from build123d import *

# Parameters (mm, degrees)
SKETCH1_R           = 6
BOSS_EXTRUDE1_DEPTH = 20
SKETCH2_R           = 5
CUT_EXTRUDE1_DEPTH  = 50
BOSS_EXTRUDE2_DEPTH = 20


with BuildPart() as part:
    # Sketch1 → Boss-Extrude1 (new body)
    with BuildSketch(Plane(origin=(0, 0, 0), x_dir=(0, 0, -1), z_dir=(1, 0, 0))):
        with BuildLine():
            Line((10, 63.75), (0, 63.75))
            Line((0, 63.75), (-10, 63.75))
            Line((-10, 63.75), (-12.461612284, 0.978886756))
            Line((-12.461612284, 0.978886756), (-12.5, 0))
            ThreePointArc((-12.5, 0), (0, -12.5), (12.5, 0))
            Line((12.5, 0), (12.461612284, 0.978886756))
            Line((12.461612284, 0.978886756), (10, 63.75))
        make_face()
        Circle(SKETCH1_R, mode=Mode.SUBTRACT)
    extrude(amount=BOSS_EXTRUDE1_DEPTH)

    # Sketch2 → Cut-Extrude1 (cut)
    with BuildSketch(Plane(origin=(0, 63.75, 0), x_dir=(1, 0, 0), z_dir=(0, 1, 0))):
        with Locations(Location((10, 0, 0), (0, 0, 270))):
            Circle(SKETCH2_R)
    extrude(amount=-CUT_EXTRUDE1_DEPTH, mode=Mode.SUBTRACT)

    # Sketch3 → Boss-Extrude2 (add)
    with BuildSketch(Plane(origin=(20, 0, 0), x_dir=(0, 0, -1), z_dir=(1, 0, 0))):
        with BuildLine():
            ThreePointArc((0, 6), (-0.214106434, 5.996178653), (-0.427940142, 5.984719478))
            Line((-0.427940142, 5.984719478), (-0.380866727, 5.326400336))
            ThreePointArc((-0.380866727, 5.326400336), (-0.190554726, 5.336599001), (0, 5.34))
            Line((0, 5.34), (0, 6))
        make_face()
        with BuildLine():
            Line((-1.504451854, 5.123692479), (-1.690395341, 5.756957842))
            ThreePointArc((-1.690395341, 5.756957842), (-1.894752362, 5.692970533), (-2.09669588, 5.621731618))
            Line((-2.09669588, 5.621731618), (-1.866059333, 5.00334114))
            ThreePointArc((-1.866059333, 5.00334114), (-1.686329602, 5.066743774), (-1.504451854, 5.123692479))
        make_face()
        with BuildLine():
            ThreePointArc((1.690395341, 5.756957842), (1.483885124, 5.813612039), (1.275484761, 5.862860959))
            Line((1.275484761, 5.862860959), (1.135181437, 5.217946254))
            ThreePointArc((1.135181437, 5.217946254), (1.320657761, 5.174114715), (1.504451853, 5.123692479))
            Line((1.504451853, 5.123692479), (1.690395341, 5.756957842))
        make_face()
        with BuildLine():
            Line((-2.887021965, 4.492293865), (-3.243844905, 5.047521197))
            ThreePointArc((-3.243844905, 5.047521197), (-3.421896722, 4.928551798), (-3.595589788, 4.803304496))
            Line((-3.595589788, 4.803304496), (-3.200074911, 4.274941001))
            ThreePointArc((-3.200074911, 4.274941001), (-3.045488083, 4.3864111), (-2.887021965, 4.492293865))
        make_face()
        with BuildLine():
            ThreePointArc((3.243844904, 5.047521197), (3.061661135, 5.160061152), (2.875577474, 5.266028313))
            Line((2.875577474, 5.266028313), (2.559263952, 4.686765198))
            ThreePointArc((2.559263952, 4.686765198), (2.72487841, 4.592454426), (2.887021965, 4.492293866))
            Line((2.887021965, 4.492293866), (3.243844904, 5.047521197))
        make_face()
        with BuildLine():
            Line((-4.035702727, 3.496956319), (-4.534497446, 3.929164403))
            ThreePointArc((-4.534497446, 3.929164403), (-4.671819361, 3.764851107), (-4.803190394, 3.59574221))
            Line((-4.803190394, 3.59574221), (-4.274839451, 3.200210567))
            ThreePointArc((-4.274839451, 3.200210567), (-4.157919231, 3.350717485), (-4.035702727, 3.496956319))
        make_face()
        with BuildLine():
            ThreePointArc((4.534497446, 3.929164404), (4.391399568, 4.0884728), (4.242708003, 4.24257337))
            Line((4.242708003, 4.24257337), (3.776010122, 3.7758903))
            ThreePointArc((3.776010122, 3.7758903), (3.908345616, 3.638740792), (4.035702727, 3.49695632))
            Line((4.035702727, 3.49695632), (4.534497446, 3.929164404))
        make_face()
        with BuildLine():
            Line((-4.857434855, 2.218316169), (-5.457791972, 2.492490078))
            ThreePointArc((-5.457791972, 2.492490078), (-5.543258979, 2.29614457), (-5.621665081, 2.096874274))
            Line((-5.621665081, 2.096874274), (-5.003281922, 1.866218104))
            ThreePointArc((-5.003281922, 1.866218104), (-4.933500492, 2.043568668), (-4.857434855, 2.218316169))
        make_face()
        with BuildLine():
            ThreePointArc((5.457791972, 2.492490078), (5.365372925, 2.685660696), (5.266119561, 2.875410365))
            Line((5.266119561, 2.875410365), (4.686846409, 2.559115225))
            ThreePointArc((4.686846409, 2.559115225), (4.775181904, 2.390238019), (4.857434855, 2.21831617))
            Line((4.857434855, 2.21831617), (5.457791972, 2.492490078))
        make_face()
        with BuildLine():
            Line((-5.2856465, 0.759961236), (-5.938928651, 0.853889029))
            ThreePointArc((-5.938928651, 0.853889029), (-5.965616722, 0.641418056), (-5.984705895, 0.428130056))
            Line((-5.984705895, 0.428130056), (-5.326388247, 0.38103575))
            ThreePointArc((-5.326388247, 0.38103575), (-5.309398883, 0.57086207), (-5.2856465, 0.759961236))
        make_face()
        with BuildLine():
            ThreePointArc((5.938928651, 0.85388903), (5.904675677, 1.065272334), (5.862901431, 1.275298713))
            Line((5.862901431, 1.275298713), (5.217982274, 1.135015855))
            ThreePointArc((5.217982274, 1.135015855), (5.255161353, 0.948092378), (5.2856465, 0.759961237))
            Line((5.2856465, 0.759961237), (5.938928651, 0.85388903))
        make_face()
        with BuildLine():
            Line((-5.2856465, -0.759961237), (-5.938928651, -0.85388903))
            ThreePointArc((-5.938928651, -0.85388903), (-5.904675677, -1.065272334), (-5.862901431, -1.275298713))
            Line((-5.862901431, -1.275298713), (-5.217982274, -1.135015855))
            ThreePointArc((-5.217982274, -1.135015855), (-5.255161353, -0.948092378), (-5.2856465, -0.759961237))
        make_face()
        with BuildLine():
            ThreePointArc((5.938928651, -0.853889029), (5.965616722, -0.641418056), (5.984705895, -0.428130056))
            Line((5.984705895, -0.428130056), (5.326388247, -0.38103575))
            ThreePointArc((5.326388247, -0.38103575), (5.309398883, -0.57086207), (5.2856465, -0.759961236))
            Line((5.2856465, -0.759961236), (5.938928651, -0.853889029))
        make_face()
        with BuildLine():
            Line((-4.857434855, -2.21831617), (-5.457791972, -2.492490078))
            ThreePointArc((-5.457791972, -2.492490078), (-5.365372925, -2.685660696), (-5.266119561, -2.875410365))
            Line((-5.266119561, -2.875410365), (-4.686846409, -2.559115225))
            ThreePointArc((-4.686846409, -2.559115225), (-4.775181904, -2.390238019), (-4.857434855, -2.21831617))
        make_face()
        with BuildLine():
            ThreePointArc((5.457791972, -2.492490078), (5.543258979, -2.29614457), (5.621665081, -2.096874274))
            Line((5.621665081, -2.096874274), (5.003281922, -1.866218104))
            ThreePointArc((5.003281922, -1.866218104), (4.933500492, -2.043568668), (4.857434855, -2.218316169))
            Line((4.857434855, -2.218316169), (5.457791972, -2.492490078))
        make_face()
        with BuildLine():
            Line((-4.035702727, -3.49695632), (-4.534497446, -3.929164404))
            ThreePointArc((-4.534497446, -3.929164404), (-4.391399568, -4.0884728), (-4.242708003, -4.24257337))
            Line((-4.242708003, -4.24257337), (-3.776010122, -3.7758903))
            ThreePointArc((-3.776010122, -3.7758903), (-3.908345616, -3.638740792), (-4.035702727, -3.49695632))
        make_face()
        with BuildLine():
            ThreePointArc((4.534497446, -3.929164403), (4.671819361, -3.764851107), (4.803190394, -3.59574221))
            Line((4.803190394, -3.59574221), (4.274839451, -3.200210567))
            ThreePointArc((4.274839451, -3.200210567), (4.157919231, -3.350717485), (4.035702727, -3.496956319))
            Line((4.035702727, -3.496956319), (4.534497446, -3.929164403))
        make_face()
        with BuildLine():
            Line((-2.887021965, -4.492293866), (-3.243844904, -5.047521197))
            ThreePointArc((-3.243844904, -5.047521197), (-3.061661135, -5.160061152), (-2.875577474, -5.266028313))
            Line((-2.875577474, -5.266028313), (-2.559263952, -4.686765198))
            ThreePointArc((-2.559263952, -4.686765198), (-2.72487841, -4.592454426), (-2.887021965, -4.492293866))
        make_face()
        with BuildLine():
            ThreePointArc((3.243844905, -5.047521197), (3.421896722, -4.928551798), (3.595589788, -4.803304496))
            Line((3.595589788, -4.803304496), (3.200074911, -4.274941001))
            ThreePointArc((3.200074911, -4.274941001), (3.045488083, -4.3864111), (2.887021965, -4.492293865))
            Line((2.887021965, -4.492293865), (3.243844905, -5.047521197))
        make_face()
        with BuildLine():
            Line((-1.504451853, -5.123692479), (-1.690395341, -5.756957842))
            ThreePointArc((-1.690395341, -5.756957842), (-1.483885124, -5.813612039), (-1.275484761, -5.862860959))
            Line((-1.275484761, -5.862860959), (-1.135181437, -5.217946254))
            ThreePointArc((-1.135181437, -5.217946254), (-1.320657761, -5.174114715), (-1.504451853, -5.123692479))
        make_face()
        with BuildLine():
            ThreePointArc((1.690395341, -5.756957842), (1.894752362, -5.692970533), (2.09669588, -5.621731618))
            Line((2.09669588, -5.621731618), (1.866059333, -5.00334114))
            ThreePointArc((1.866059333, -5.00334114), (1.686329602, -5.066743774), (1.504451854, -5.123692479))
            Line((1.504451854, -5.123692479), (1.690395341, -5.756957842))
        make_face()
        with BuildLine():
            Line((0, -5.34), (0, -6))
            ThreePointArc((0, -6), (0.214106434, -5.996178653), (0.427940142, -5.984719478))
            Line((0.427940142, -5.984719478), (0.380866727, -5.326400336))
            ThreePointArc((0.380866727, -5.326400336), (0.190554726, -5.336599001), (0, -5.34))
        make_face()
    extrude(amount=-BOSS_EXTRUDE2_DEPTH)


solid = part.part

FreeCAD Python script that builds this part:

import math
import FreeCAD as App
import Part
import Sketcher
Q = App.Units.Quantity

doc = App.newDocument("Part")
params = doc.addObject("Spreadsheet::Sheet", "Params")
for row, (alias, value) in enumerate([
    ("sketch1_diameter", "12 mm"),
    ("sketch1_radius", "12.5 mm"),
    ("sketch1_height", "20 mm"),
    ("pad1_length", "20 mm"),
    ("sketch2_diameter", "10 mm"),
    ("pocket1_length", "50 mm"),
    ("sketch3_radius", "5.999999 mm"),
    ("sketch3_radius2", "5.34 mm"),
    ("pad2_length", "20 mm"),
], start=1):
    params.set(f"A{row}", alias)
    params.set(f"B{row}", "=" + value)
    params.setAlias(f"B{row}", alias)

body = doc.addObject("PartDesign::Body", "Body")

sketch1 = body.newObject("Sketcher::SketchObject", "Sketch")
sketch1.AttachmentSupport = (doc.getObject("YZ_Plane"), [""])
sketch1.MapMode = "FlatFace"
sketch1.addGeometry(Part.LineSegment(App.Vector(63.75, -10, 0), App.Vector(63.75, 10, 0)), False)
sketch1.addGeometry(Part.LineSegment(App.Vector(63.75, 10, 0), App.Vector(0.978887, 12.461612, 0)), False)
sketch1.addGeometry(Part.LineSegment(App.Vector(0.978887, 12.461612, 0), App.Vector(0, 12.5, 0)), False)
sketch1.addGeometry(Part.ArcOfCircle(Part.Circle(App.Vector(0, 0, 0), App.Vector(0, 0, 1), 12.5), math.radians(90), math.radians(270)), False)
sketch1.addGeometry(Part.LineSegment(App.Vector(0, -12.5, 0), App.Vector(0.978887, -12.461612, 0)), False)
sketch1.addGeometry(Part.LineSegment(App.Vector(0.978887, -12.461612, 0), App.Vector(63.75, -10, 0)), False)
sketch1.addGeometry(Part.Circle(App.Vector(0, 0, 0), App.Vector(0, 0, 1), 6), False)
sketch1.addConstraint(Sketcher.Constraint("Coincident", 0, 2, 1, 1))
sketch1.addConstraint(Sketcher.Constraint("Coincident", 1, 2, 2, 1))
sketch1.addConstraint(Sketcher.Constraint("Coincident", 2, 2, 3, 1))
sketch1.addConstraint(Sketcher.Constraint("Coincident", 3, 2, 4, 1))
sketch1.addConstraint(Sketcher.Constraint("Coincident", 4, 2, 5, 1))
sketch1.addConstraint(Sketcher.Constraint("Coincident", 5, 2, 0, 1))
sketch1.addConstraint(Sketcher.Constraint("Vertical", 0))
sketch1.addConstraint(Sketcher.Constraint("Coincident", 3, 3, -1, 1))
sketch1.addConstraint(Sketcher.Constraint("Coincident", 6, 3, -1, 1))
sketch1.addConstraint(Sketcher.Constraint("Symmetric", 1, 2, 4, 2, -1))
sketch1.addConstraint(Sketcher.Constraint("PointOnObject", 2, 2, -2))
sketch1.addConstraint(Sketcher.Constraint("PointOnObject", 3, 2, -2))
sketch1.addConstraint(Sketcher.Constraint("Parallel", 1, 2))
sketch1.addConstraint(Sketcher.Constraint("Parallel", 4, 5))
sketch1.addConstraint(Sketcher.Constraint("Diameter", 6, 12.0))
sketch1.addConstraint(Sketcher.Constraint("Radius", 3, 12.5))
sketch1.addConstraint(Sketcher.Constraint("DistanceY", 0, 1, 0, 2, 20.0))
sketch1.addConstraint(Sketcher.Constraint("DistanceX", -1, 1, 0, 2, 63.75))
sketch1.addConstraint(Sketcher.Constraint("Distance", 1, 62.819362))
sketch1.setExpression("Constraints[14]", "Params.sketch1_diameter")
sketch1.setExpression("Constraints[15]", "Params.sketch1_radius")
sketch1.setExpression("Constraints[16]", "Params.sketch1_height")
pad1 = body.newObject("PartDesign::Pad", "Pad")
pad1.Profile = sketch1
pad1.setExpression("Length", "Params.pad1_length")

sketch2 = body.newObject("Sketcher::SketchObject", "Sketch001")
sketch2.AttachmentSupport = (doc.getObject("XZ_Plane"), [""])
sketch2.MapMode = "FlatFace"
sketch2.AttachmentOffset = App.Placement(App.Vector(0, 0, -63.75), App.Rotation())
sketch2.addGeometry(Part.Circle(App.Vector(10, 0, 0), App.Vector(0, 0, 1), 5), False)
sketch2.addConstraint(Sketcher.Constraint("PointOnObject", 0, 3, -1))
sketch2.addConstraint(Sketcher.Constraint("Diameter", 0, 10.0))
sketch2.addConstraint(Sketcher.Constraint("DistanceX", -1, 1, 0, 3, 10.0))
sketch2.setExpression("Constraints[1]", "Params.sketch2_diameter")
pocket1 = body.newObject("PartDesign::Pocket", "Pocket")
pocket1.Profile = sketch2
pocket1.setExpression("Length", "Params.pocket1_length")
pocket1.Reversed = True

sketch3 = body.newObject("Sketcher::SketchObject", "Sketch002")
sketch3.AttachmentSupport = (doc.getObject("YZ_Plane"), [""])
sketch3.MapMode = "FlatFace"
sketch3.AttachmentOffset = App.Placement(App.Vector(0, 0, 20), App.Rotation())
sketch3.addGeometry(Part.ArcOfCircle(Part.Circle(App.Vector(0.000001, 0, 0), App.Vector(0, 0, 1), 5.999999), math.radians(0), math.radians(4.09)), False)
sketch3.addGeometry(Part.LineSegment(App.Vector(5.984719, 0.42794, 0), App.Vector(5.3264, 0.380867, 0)), False)
sketch3.addGeometry(Part.ArcOfCircle(Part.Circle(App.Vector(0, 0, 0), App.Vector(0, 0, 1), 5.34), math.radians(0), math.radians(4.09)), False)
sketch3.addGeometry(Part.LineSegment(App.Vector(5.34, 0, 0), App.Vector(6, 0, 0)), False)
sketch3.addGeometry(Part.LineSegment(App.Vector(5.123692, 1.504452, 0), App.Vector(5.756958, 1.690395, 0)), False)
sketch3.addGeometry(Part.ArcOfCircle(Part.Circle(App.Vector(0, 0, 0), App.Vector(0, 0, 1), 6), math.radians(16.363636), math.radians(20.453637)), False)
sketch3.addGeometry(Part.LineSegment(App.Vector(5.621732, 2.096696, 0), App.Vector(5.003341, 1.866059, 0)), False)
sketch3.addGeometry(Part.ArcOfCircle(Part.Circle(App.Vector(0, 0, 0), App.Vector(0, 0, 1), 5.34), math.radians(16.363636), math.radians(20.453636)), False)
sketch3.addGeometry(Part.ArcOfCircle(Part.Circle(App.Vector(0, 0, 0), App.Vector(0, 0, 1), 6), math.radians(-16.363636), math.radians(-12.273636)), False)
sketch3.addGeometry(Part.LineSegment(App.Vector(5.862861, -1.275485, 0), App.Vector(5.217946, -1.135181, 0)), False)
sketch3.addGeometry(Part.ArcOfCircle(Part.Circle(App.Vector(0.000001, 0, 0), App.Vector(0, 0, 1), 5.339999), math.radians(-16.363637), math.radians(-12.273636)), False)
sketch3.addGeometry(Part.LineSegment(App.Vector(5.123692, -1.504452, 0), App.Vector(5.756958, -1.690395, 0)), False)
sketch3.addGeometry(Part.LineSegment(App.Vector(4.492294, 2.887022, 0), App.Vector(5.047521, 3.243845, 0)), False)
sketch3.addGeometry(Part.ArcOfCircle(Part.Circle(App.Vector(0, 0, 0), App.Vector(0, 0, 1), 6), math.radians(32.727273), math.radians(36.817273)), False)
sketch3.addGeometry(Part.LineSegment(App.Vector(4.803304, 3.59559, 0), App.Vector(4.274941, 3.200075, 0)), False)
sketch3.addGeometry(Part.ArcOfCircle(Part.Circle(App.Vector(0.000001, 0, 0), App.Vector(0, 0, 1), 5.339999), math.radians(32.727272), math.radians(36.817273)), False)
sketch3.addGeometry(Part.ArcOfCircle(Part.Circle(App.Vector(0, 0, 0), App.Vector(0, 0, 1), 6), math.radians(-32.727273), math.radians(-28.637273)), False)
sketch3.addGeometry(Part.LineSegment(App.Vector(5.266028, -2.875577, 0), App.Vector(4.686765, -2.559264, 0)), False)
sketch3.addGeometry(Part.ArcOfCircle(Part.Circle(App.Vector(0, 0, 0), App.Vector(0, 0, 1), 5.34), math.radians(-32.727273), math.radians(-28.637272)), False)
sketch3.addGeometry(Part.LineSegment(App.Vector(4.492294, -2.887022, 0), App.Vector(5.047521, -3.243845, 0)), False)
sketch3.addGeometry(Part.LineSegment(App.Vector(3.496956, 4.035703, 0), App.Vector(3.929164, 4.534497, 0)), False)
sketch3.addGeometry(Part.ArcOfCircle(Part.Circle(App.Vector(0, 0, 0), App.Vector(0, 0, 1), 6), math.radians(49.090909), math.radians(53.180909)), False)
sketch3.addGeometry(Part.LineSegment(App.Vector(3.595742, 4.80319, 0), App.Vector(3.200211, 4.274839, 0)), False)
sketch3.addGeometry(Part.ArcOfCircle(Part.Circle(App.Vector(-0.000001, -0.000001, 0), App.Vector(0, 0, 1), 5.340001), math.radians(49.090909), math.radians(53.180909)), False)
sketch3.addGeometry(Part.ArcOfCircle(Part.Circle(App.Vector(0, 0, 0), App.Vector(0, 0, 1), 6), math.radians(-49.090909), math.radians(-45.000909)), False)
sketch3.addGeometry(Part.LineSegment(App.Vector(4.242573, -4.242708, 0), App.Vector(3.77589, -3.77601, 0)), False)
sketch3.addGeometry(Part.ArcOfCircle(Part.Circle(App.Vector(0, 0, 0), App.Vector(0, 0, 1), 5.339999), math.radians(-49.090909), math.radians(-45.000909)), False)
sketch3.addGeometry(Part.LineSegment(App.Vector(3.496956, -4.035703, 0), App.Vector(3.929164, -4.534497, 0)), False)
sketch3.addGeometry(Part.LineSegment(App.Vector(2.218316, 4.857435, 0), App.Vector(2.49249, 5.457792, 0)), False)
sketch3.addGeometry(Part.ArcOfCircle(Part.Circle(App.Vector(0, -0.000001, 0), App.Vector(0, 0, 1), 6.000001), math.radians(65.454546), math.radians(69.544545)), False)
sketch3.addGeometry(Part.LineSegment(App.Vector(2.096874, 5.621665, 0), App.Vector(1.866218, 5.003282, 0)), False)
sketch3.addGeometry(Part.ArcOfCircle(Part.Circle(App.Vector(0, 0.000001, 0), App.Vector(0, 0, 1), 5.339999), math.radians(65.454545), math.radians(69.544546)), False)
sketch3.addGeometry(Part.ArcOfCircle(Part.Circle(App.Vector(0, 0, 0), App.Vector(0, 0, 1), 6), math.radians(-65.454545), math.radians(-61.364545)), False)
sketch3.addGeometry(Part.LineSegment(App.Vector(2.87541, -5.26612, 0), App.Vector(2.559115, -4.686846, 0)), False)
sketch3.addGeometry(Part.ArcOfCircle(Part.Circle(App.Vector(0, -0.000001, 0), App.Vector(0, 0, 1), 5.339999), math.radians(-65.454546), math.radians(-61.364545)), False)
sketch3.addGeometry(Part.LineSegment(App.Vector(2.218316, -4.857435, 0), App.Vector(2.49249, -5.457792, 0)), False)
sketch3.addGeometry(Part.LineSegment(App.Vector(0.759961, 5.285647, 0), App.Vector(0.853889, 5.938929, 0)), False)
sketch3.addGeometry(Part.ArcOfCircle(Part.Circle(App.Vector(0, 0, 0), App.Vector(0, 0, 1), 6), math.radians(81.818182), math.radians(85.908182)), False)
sketch3.addGeometry(Part.LineSegment(App.Vector(0.42813, 5.984706, 0), App.Vector(0.381036, 5.326388, 0)), False)
sketch3.addGeometry(Part.ArcOfCircle(Part.Circle(App.Vector(0, 0, 0), App.Vector(0, 0, 1), 5.34), math.radians(81.818182), math.radians(85.908182)), False)
sketch3.addGeometry(Part.ArcOfCircle(Part.Circle(App.Vector(0, 0, 0), App.Vector(0, 0, 1), 6), math.radians(-81.818182), math.radians(-77.728182)), False)
sketch3.addGeometry(Part.LineSegment(App.Vector(1.275299, -5.862901, 0), App.Vector(1.135016, -5.217982, 0)), False)
sketch3.addGeometry(Part.ArcOfCircle(Part.Circle(App.Vector(0, 0, 0), App.Vector(0, 0, 1), 5.34), math.radians(-81.818182), math.radians(-77.728182)), False)
sketch3.addGeometry(Part.LineSegment(App.Vector(0.759961, -5.285647, 0), App.Vector(0.853889, -5.938929, 0)), False)
sketch3.addGeometry(Part.LineSegment(App.Vector(-0.759961, 5.285647, 0), App.Vector(-0.853889, 5.938929, 0)), False)
sketch3.addGeometry(Part.ArcOfCircle(Part.Circle(App.Vector(0, 0, 0), App.Vector(0, 0, 1), 6), math.radians(98.181818), math.radians(102.271818)), False)
sketch3.addGeometry(Part.LineSegment(App.Vector(-1.275299, 5.862901, 0), App.Vector(-1.135016, 5.217982, 0)), False)
sketch3.addGeometry(Part.ArcOfCircle(Part.Circle(App.Vector(0, 0, 0), App.Vector(0, 0, 1), 5.34), math.radians(98.181818), math.radians(102.271818)), False)
sketch3.addGeometry(Part.ArcOfCircle(Part.Circle(App.Vector(0, 0, 0), App.Vector(0, 0, 1), 6), math.radians(-98.181818), math.radians(-94.091818)), False)
sketch3.addGeometry(Part.LineSegment(App.Vector(-0.42813, -5.984706, 0), App.Vector(-0.381036, -5.326388, 0)), False)
sketch3.addGeometry(Part.ArcOfCircle(Part.Circle(App.Vector(0, 0, 0), App.Vector(0, 0, 1), 5.34), math.radians(-98.181818), math.radians(-94.091818)), False)
sketch3.addGeometry(Part.LineSegment(App.Vector(-0.759961, -5.285647, 0), App.Vector(-0.853889, -5.938929, 0)), False)
sketch3.addGeometry(Part.LineSegment(App.Vector(-2.218316, 4.857435, 0), App.Vector(-2.49249, 5.457792, 0)), False)
sketch3.addGeometry(Part.ArcOfCircle(Part.Circle(App.Vector(0, 0, 0), App.Vector(0, 0, 1), 6), math.radians(114.545455), math.radians(118.635455)), False)
sketch3.addGeometry(Part.LineSegment(App.Vector(-2.87541, 5.26612, 0), App.Vector(-2.559115, 4.686846, 0)), False)
sketch3.addGeometry(Part.ArcOfCircle(Part.Circle(App.Vector(0, 0.000001, 0), App.Vector(0, 0, 1), 5.339999), math.radians(114.545454), math.radians(118.635455)), False)
sketch3.addGeometry(Part.ArcOfCircle(Part.Circle(App.Vector(0, 0.000001, 0), App.Vector(0, 0, 1), 6.000001), math.radians(-114.545454), math.radians(-110.455455)), False)
sketch3.addGeometry(Part.LineSegment(App.Vector(-2.096874, -5.621665, 0), App.Vector(-1.866218, -5.003282, 0)), False)
sketch3.addGeometry(Part.ArcOfCircle(Part.Circle(App.Vector(0, -0.000001, 0), App.Vector(0, 0, 1), 5.339999), math.radians(-114.545455), math.radians(-110.455454)), False)
sketch3.addGeometry(Part.LineSegment(App.Vector(-2.218316, -4.857435, 0), App.Vector(-2.49249, -5.457792, 0)), False)
sketch3.addGeometry(Part.LineSegment(App.Vector(-3.496956, 4.035703, 0), App.Vector(-3.929164, 4.534497, 0)), False)
sketch3.addGeometry(Part.ArcOfCircle(Part.Circle(App.Vector(0, 0, 0), App.Vector(0, 0, 1), 6), math.radians(130.909091), math.radians(134.999091)), False)
sketch3.addGeometry(Part.LineSegment(App.Vector(-4.242573, 4.242708, 0), App.Vector(-3.77589, 3.77601, 0)), False)
sketch3.addGeometry(Part.ArcOfCircle(Part.Circle(App.Vector(0, 0, 0), App.Vector(0, 0, 1), 5.339999), math.radians(130.909091), math.radians(134.999091)), False)
sketch3.addGeometry(Part.ArcOfCircle(Part.Circle(App.Vector(0, 0, 0), App.Vector(0, 0, 1), 6), math.radians(-130.909091), math.radians(-126.819091)), False)
sketch3.addGeometry(Part.LineSegment(App.Vector(-3.595742, -4.80319, 0), App.Vector(-3.200211, -4.274839, 0)), False)
sketch3.addGeometry(Part.ArcOfCircle(Part.Circle(App.Vector(0.000001, 0.000001, 0), App.Vector(0, 0, 1), 5.340001), math.radians(-130.909091), math.radians(-126.819091)), False)
sketch3.addGeometry(Part.LineSegment(App.Vector(-3.496956, -4.035703, 0), App.Vector(-3.929164, -4.534497, 0)), False)
sketch3.addGeometry(Part.LineSegment(App.Vector(-4.492294, 2.887022, 0), App.Vector(-5.047521, 3.243845, 0)), False)
sketch3.addGeometry(Part.ArcOfCircle(Part.Circle(App.Vector(0, 0, 0), App.Vector(0, 0, 1), 6), math.radians(147.272727), math.radians(151.362727)), False)
sketch3.addGeometry(Part.LineSegment(App.Vector(-5.266028, 2.875577, 0), App.Vector(-4.686765, 2.559264, 0)), False)
sketch3.addGeometry(Part.ArcOfCircle(Part.Circle(App.Vector(0, 0, 0), App.Vector(0, 0, 1), 5.34), math.radians(147.272727), math.radians(151.362728)), False)
sketch3.addGeometry(Part.ArcOfCircle(Part.Circle(App.Vector(0, 0, 0), App.Vector(0, 0, 1), 6), math.radians(-147.272727), math.radians(-143.182727)), False)
sketch3.addGeometry(Part.LineSegment(App.Vector(-4.803304, -3.59559, 0), App.Vector(-4.274941, -3.200075, 0)), False)
sketch3.addGeometry(Part.ArcOfCircle(Part.Circle(App.Vector(-0.000001, 0, 0), App.Vector(0, 0, 1), 5.339999), math.radians(-147.272728), math.radians(-143.182727)), False)
sketch3.addGeometry(Part.LineSegment(App.Vector(-4.492294, -2.887022, 0), App.Vector(-5.047521, -3.243845, 0)), False)
sketch3.addGeometry(Part.LineSegment(App.Vector(-5.123692, 1.504452, 0), App.Vector(-5.756958, 1.690395, 0)), False)
sketch3.addGeometry(Part.ArcOfCircle(Part.Circle(App.Vector(0, 0, 0), App.Vector(0, 0, 1), 6), math.radians(163.636364), math.radians(167.726364)), False)
sketch3.addGeometry(Part.LineSegment(App.Vector(-5.862861, 1.275485, 0), App.Vector(-5.217946, 1.135181, 0)), False)
sketch3.addGeometry(Part.ArcOfCircle(Part.Circle(App.Vector(-0.000001, 0, 0), App.Vector(0, 0, 1), 5.339999), math.radians(163.636363), math.radians(167.726364)), False)
sketch3.addGeometry(Part.ArcOfCircle(Part.Circle(App.Vector(0, 0, 0), App.Vector(0, 0, 1), 6), math.radians(-163.636364), math.radians(-159.546363)), False)
sketch3.addGeometry(Part.LineSegment(App.Vector(-5.621732, -2.096696, 0), App.Vector(-5.003341, -1.866059, 0)), False)
sketch3.addGeometry(Part.ArcOfCircle(Part.Circle(App.Vector(0, 0, 0), App.Vector(0, 0, 1), 5.34), math.radians(-163.636364), math.radians(-159.546364)), False)
sketch3.addGeometry(Part.LineSegment(App.Vector(-5.123692, -1.504452, 0), App.Vector(-5.756958, -1.690395, 0)), False)
sketch3.addGeometry(Part.LineSegment(App.Vector(-5.34, 0, 0), App.Vector(-6, 0, 0)), False)
sketch3.addGeometry(Part.ArcOfCircle(Part.Circle(App.Vector(-0.000001, 0, 0), App.Vector(0, 0, 1), 5.999999), math.radians(180), math.radians(184.09)), False)
sketch3.addGeometry(Part.LineSegment(App.Vector(-5.984719, -0.42794, 0), App.Vector(-5.3264, -0.380867, 0)), False)
sketch3.addGeometry(Part.ArcOfCircle(Part.Circle(App.Vector(0, 0, 0), App.Vector(0, 0, 1), 5.34), math.radians(180), math.radians(184.09)), False)
sketch3.addConstraint(Sketcher.Constraint("Coincident", 0, 2, 1, 1))
sketch3.addConstraint(Sketcher.Constraint("Coincident", 1, 2, 2, 2))
sketch3.addConstraint(Sketcher.Constraint("Coincident", 2, 1, 3, 1))
sketch3.addConstraint(Sketcher.Constraint("Coincident", 3, 2, 0, 1))
sketch3.addConstraint(Sketcher.Constraint("Coincident", 4, 2, 5, 1))
sketch3.addConstraint(Sketcher.Constraint("Coincident", 5, 2, 6, 1))
sketch3.addConstraint(Sketcher.Constraint("Coincident", 6, 2, 7, 2))
sketch3.addConstraint(Sketcher.Constraint("Coincident", 7, 1, 4, 1))
sketch3.addConstraint(Sketcher.Constraint("Coincident", 8, 2, 9, 1))
sketch3.addConstraint(Sketcher.Constraint("Coincident", 9, 2, 10, 2))
sketch3.addConstraint(Sketcher.Constraint("Coincident", 10, 1, 11, 1))
sketch3.addConstraint(Sketcher.Constraint("Coincident", 11, 2, 8, 1))
sketch3.addConstraint(Sketcher.Constraint("Coincident", 12, 2, 13, 1))
sketch3.addConstraint(Sketcher.Constraint("Coincident", 13, 2, 14, 1))
sketch3.addConstraint(Sketcher.Constraint("Coincident", 14, 2, 15, 2))
sketch3.addConstraint(Sketcher.Constraint("Coincident", 15, 1, 12, 1))
sketch3.addConstraint(Sketcher.Constraint("Coincident", 16, 2, 17, 1))
sketch3.addConstraint(Sketcher.Constraint("Coincident", 17, 2, 18, 2))
sketch3.addConstraint(Sketcher.Constraint("Coincident", 18, 1, 19, 1))
sketch3.addConstraint(Sketcher.Constraint("Coincident", 19, 2, 16, 1))
sketch3.addConstraint(Sketcher.Constraint("Coincident", 20, 2, 21, 1))
sketch3.addConstraint(Sketcher.Constraint("Coincident", 21, 2, 22, 1))
sketch3.addConstraint(Sketcher.Constraint("Coincident", 22, 2, 23, 2))
sketch3.addConstraint(Sketcher.Constraint("Coincident", 23, 1, 20, 1))
sketch3.addConstraint(Sketcher.Constraint("Coincident", 24, 2, 25, 1))
sketch3.addConstraint(Sketcher.Constraint("Coincident", 25, 2, 26, 2))
sketch3.addConstraint(Sketcher.Constraint("Coincident", 26, 1, 27, 1))
sketch3.addConstraint(Sketcher.Constraint("Coincident", 27, 2, 24, 1))
sketch3.addConstraint(Sketcher.Constraint("Coincident", 28, 2, 29, 1))
sketch3.addConstraint(Sketcher.Constraint("Coincident", 29, 2, 30, 1))
sketch3.addConstraint(Sketcher.Constraint("Coincident", 30, 2, 31, 2))
sketch3.addConstraint(Sketcher.Constraint("Coincident", 31, 1, 28, 1))
sketch3.addConstraint(Sketcher.Constraint("Coincident", 32, 2, 33, 1))
sketch3.addConstraint(Sketcher.Constraint("Coincident", 33, 2, 34, 2))
sketch3.addConstraint(Sketcher.Constraint("Coincident", 34, 1, 35, 1))
sketch3.addConstraint(Sketcher.Constraint("Coincident", 35, 2, 32, 1))
sketch3.addConstraint(Sketcher.Constraint("Coincident", 36, 2, 37, 1))
sketch3.addConstraint(Sketcher.Constraint("Coincident", 37, 2, 38, 1))
sketch3.addConstraint(Sketcher.Constraint("Coincident", 38, 2, 39, 2))
sketch3.addConstraint(Sketcher.Constraint("Coincident", 39, 1, 36, 1))
sketch3.addConstraint(Sketcher.Constraint("Coincident", 40, 2, 41, 1))
sketch3.addConstraint(Sketcher.Constraint("Coincident", 41, 2, 42, 2))
sketch3.addConstraint(Sketcher.Constraint("Coincident", 42, 1, 43, 1))
sketch3.addConstraint(Sketcher.Constraint("Coincident", 43, 2, 40, 1))
sketch3.addConstraint(Sketcher.Constraint("Coincident", 44, 2, 45, 1))
sketch3.addConstraint(Sketcher.Constraint("Coincident", 45, 2, 46, 1))
sketch3.addConstraint(Sketcher.Constraint("Coincident", 46, 2, 47, 2))
sketch3.addConstraint(Sketcher.Constraint("Coincident", 47, 1, 44, 1))
sketch3.addConstraint(Sketcher.Constraint("Coincident", 48, 2, 49, 1))
sketch3.addConstraint(Sketcher.Constraint("Coincident", 49, 2, 50, 2))
sketch3.addConstraint(Sketcher.Constraint("Coincident", 50, 1, 51, 1))
sketch3.addConstraint(Sketcher.Constraint("Coincident", 51, 2, 48, 1))
sketch3.addConstraint(Sketcher.Constraint("Coincident", 52, 2, 53, 1))
sketch3.addConstraint(Sketcher.Constraint("Coincident", 53, 2, 54, 1))
sketch3.addConstraint(Sketcher.Constraint("Coincident", 54, 2, 55, 2))
sketch3.addConstraint(Sketcher.Constraint("Coincident", 55, 1, 52, 1))
sketch3.addConstraint(Sketcher.Constraint("Coincident", 56, 2, 57, 1))
sketch3.addConstraint(Sketcher.Constraint("Coincident", 57, 2, 58, 2))
sketch3.addConstraint(Sketcher.Constraint("Coincident", 58, 1, 59, 1))
sketch3.addConstraint(Sketcher.Constraint("Coincident", 59, 2, 56, 1))
sketch3.addConstraint(Sketcher.Constraint("Coincident", 60, 2, 61, 1))
sketch3.addConstraint(Sketcher.Constraint("Coincident", 61, 2, 62, 1))
sketch3.addConstraint(Sketcher.Constraint("Coincident", 62, 2, 63, 2))
sketch3.addConstraint(Sketcher.Constraint("Coincident", 63, 1, 60, 1))
sketch3.addConstraint(Sketcher.Constraint("Coincident", 64, 2, 65, 1))
sketch3.addConstraint(Sketcher.Constraint("Coincident", 65, 2, 66, 2))
sketch3.addConstraint(Sketcher.Constraint("Coincident", 66, 1, 67, 1))
sketch3.addConstraint(Sketcher.Constraint("Coincident", 67, 2, 64, 1))
sketch3.addConstraint(Sketcher.Constraint("Coincident", 68, 2, 69, 1))
sketch3.addConstraint(Sketcher.Constraint("Coincident", 69, 2, 70, 1))
sketch3.addConstraint(Sketcher.Constraint("Coincident", 70, 2, 71, 2))
sketch3.addConstraint(Sketcher.Constraint("Coincident", 71, 1, 68, 1))
sketch3.addConstraint(Sketcher.Constraint("Coincident", 72, 2, 73, 1))
sketch3.addConstraint(Sketcher.Constraint("Coincident", 73, 2, 74, 2))
sketch3.addConstraint(Sketcher.Constraint("Coincident", 74, 1, 75, 1))
sketch3.addConstraint(Sketcher.Constraint("Coincident", 75, 2, 72, 1))
sketch3.addConstraint(Sketcher.Constraint("Coincident", 76, 2, 77, 1))
sketch3.addConstraint(Sketcher.Constraint("Coincident", 77, 2, 78, 1))
sketch3.addConstraint(Sketcher.Constraint("Coincident", 78, 2, 79, 2))
sketch3.addConstraint(Sketcher.Constraint("Coincident", 79, 1, 76, 1))
sketch3.addConstraint(Sketcher.Constraint("Coincident", 80, 2, 81, 1))
sketch3.addConstraint(Sketcher.Constraint("Coincident", 81, 2, 82, 2))
sketch3.addConstraint(Sketcher.Constraint("Coincident", 82, 1, 83, 1))
sketch3.addConstraint(Sketcher.Constraint("Coincident", 83, 2, 80, 1))
sketch3.addConstraint(Sketcher.Constraint("Coincident", 84, 2, 85, 1))
sketch3.addConstraint(Sketcher.Constraint("Coincident", 85, 2, 86, 1))
sketch3.addConstraint(Sketcher.Constraint("Coincident", 86, 2, 87, 2))
sketch3.addConstraint(Sketcher.Constraint("Coincident", 87, 1, 84, 1))
sketch3.addConstraint(Sketcher.Constraint("Horizontal", 3))
sketch3.addConstraint(Sketcher.Constraint("Horizontal", 84))
sketch3.addConstraint(Sketcher.Constraint("Coincident", 0, 3, -1, 1))
sketch3.addConstraint(Sketcher.Constraint("Coincident", 2, 3, -1, 1))
sketch3.addConstraint(Sketcher.Constraint("Coincident", 5, 3, -1, 1))
sketch3.addConstraint(Sketcher.Constraint("Coincident", 7, 3, -1, 1))
sketch3.addConstraint(Sketcher.Constraint("Coincident", 8, 3, -1, 1))
sketch3.addConstraint(Sketcher.Constraint("Coincident", 10, 3, -1, 1))
sketch3.addConstraint(Sketcher.Constraint("Coincident", 13, 3, -1, 1))
sketch3.addConstraint(Sketcher.Constraint("Coincident", 15, 3, -1, 1))
sketch3.addConstraint(Sketcher.Constraint("Coincident", 16, 3, -1, 1))
sketch3.addConstraint(Sketcher.Constraint("Coincident", 18, 3, -1, 1))
sketch3.addConstraint(Sketcher.Constraint("Coincident", 21, 3, -1, 1))
sketch3.addConstraint(Sketcher.Constraint("Coincident", 23, 3, -1, 1))
sketch3.addConstraint(Sketcher.Constraint("Coincident", 24, 3, -1, 1))
sketch3.addConstraint(Sketcher.Constraint("Coincident", 26, 3, -1, 1))
sketch3.addConstraint(Sketcher.Constraint("Coincident", 29, 3, -1, 1))
sketch3.addConstraint(Sketcher.Constraint("Coincident", 31, 3, -1, 1))
sketch3.addConstraint(Sketcher.Constraint("Coincident", 32, 3, -1, 1))
sketch3.addConstraint(Sketcher.Constraint("Coincident", 34, 3, -1, 1))
sketch3.addConstraint(Sketcher.Constraint("Coincident", 37, 3, -1, 1))
sketch3.addConstraint(Sketcher.Constraint("Coincident", 39, 3, -1, 1))
sketch3.addConstraint(Sketcher.Constraint("Coincident", 40, 3, -1, 1))
sketch3.addConstraint(Sketcher.Constraint("Coincident", 42, 3, -1, 1))
sketch3.addConstraint(Sketcher.Constraint("Coincident", 45, 3, -1, 1))
sketch3.addConstraint(Sketcher.Constraint("Coincident", 47, 3, -1, 1))
sketch3.addConstraint(Sketcher.Constraint("Coincident", 48, 3, -1, 1))
sketch3.addConstraint(Sketcher.Constraint("Coincident", 50, 3, -1, 1))
sketch3.addConstraint(Sketcher.Constraint("Coincident", 53, 3, -1, 1))
sketch3.addConstraint(Sketcher.Constraint("Coincident", 55, 3, -1, 1))
sketch3.addConstraint(Sketcher.Constraint("Coincident", 56, 3, -1, 1))
sketch3.addConstraint(Sketcher.Constraint("Coincident", 58, 3, -1, 1))
sketch3.addConstraint(Sketcher.Constraint("Coincident", 61, 3, -1, 1))
sketch3.addConstraint(Sketcher.Constraint("Coincident", 63, 3, -1, 1))
sketch3.addConstraint(Sketcher.Constraint("Coincident", 64, 3, -1, 1))
sketch3.addConstraint(Sketcher.Constraint("Coincident", 66, 3, -1, 1))
sketch3.addConstraint(Sketcher.Constraint("Coincident", 69, 3, -1, 1))
sketch3.addConstraint(Sketcher.Constraint("Coincident", 71, 3, -1, 1))
sketch3.addConstraint(Sketcher.Constraint("Coincident", 72, 3, -1, 1))
sketch3.addConstraint(Sketcher.Constraint("Coincident", 74, 3, -1, 1))
sketch3.addConstraint(Sketcher.Constraint("Coincident", 77, 3, -1, 1))
sketch3.addConstraint(Sketcher.Constraint("Coincident", 79, 3, -1, 1))
sketch3.addConstraint(Sketcher.Constraint("Coincident", 80, 3, -1, 1))
sketch3.addConstraint(Sketcher.Constraint("Coincident", 82, 3, -1, 1))
sketch3.addConstraint(Sketcher.Constraint("Coincident", 85, 3, -1, 1))
sketch3.addConstraint(Sketcher.Constraint("Coincident", 87, 3, -1, 1))
sketch3.addConstraint(Sketcher.Constraint("Equal", 0, 5))
sketch3.addConstraint(Sketcher.Constraint("Equal", 2, 7))
sketch3.addConstraint(Sketcher.Constraint("Equal", 5, 8))
sketch3.addConstraint(Sketcher.Constraint("Equal", 7, 10))
sketch3.addConstraint(Sketcher.Constraint("Equal", 8, 13))
sketch3.addConstraint(Sketcher.Constraint("Equal", 10, 15))
sketch3.addConstraint(Sketcher.Constraint("Equal", 13, 16))
sketch3.addConstraint(Sketcher.Constraint("Equal", 15, 18))
sketch3.addConstraint(Sketcher.Constraint("Equal", 16, 21))
sketch3.addConstraint(Sketcher.Constraint("Equal", 18, 23))
sketch3.addConstraint(Sketcher.Constraint("Equal", 21, 24))
sketch3.addConstraint(Sketcher.Constraint("Equal", 23, 26))
sketch3.addConstraint(Sketcher.Constraint("Equal", 24, 29))
sketch3.addConstraint(Sketcher.Constraint("Equal", 26, 31))
sketch3.addConstraint(Sketcher.Constraint("Equal", 29, 32))
sketch3.addConstraint(Sketcher.Constraint("Equal", 31, 34))
sketch3.addConstraint(Sketcher.Constraint("Equal", 32, 37))
sketch3.addConstraint(Sketcher.Constraint("Equal", 34, 39))
sketch3.addConstraint(Sketcher.Constraint("Equal", 37, 40))
sketch3.addConstraint(Sketcher.Constraint("Equal", 39, 42))
sketch3.addConstraint(Sketcher.Constraint("Equal", 40, 45))
sketch3.addConstraint(Sketcher.Constraint("Equal", 42, 47))
sketch3.addConstraint(Sketcher.Constraint("Equal", 45, 48))
sketch3.addConstraint(Sketcher.Constraint("Equal", 47, 50))
sketch3.addConstraint(Sketcher.Constraint("Equal", 48, 53))
sketch3.addConstraint(Sketcher.Constraint("Equal", 50, 55))
sketch3.addConstraint(Sketcher.Constraint("Equal", 53, 56))
sketch3.addConstraint(Sketcher.Constraint("Equal", 55, 58))
sketch3.addConstraint(Sketcher.Constraint("Equal", 56, 61))
sketch3.addConstraint(Sketcher.Constraint("Equal", 58, 63))
sketch3.addConstraint(Sketcher.Constraint("Equal", 61, 64))
sketch3.addConstraint(Sketcher.Constraint("Equal", 63, 66))
sketch3.addConstraint(Sketcher.Constraint("Equal", 64, 69))
sketch3.addConstraint(Sketcher.Constraint("Equal", 66, 71))
sketch3.addConstraint(Sketcher.Constraint("Equal", 69, 72))
sketch3.addConstraint(Sketcher.Constraint("Equal", 71, 74))
sketch3.addConstraint(Sketcher.Constraint("Equal", 72, 77))
sketch3.addConstraint(Sketcher.Constraint("Equal", 74, 79))
sketch3.addConstraint(Sketcher.Constraint("Equal", 77, 80))
sketch3.addConstraint(Sketcher.Constraint("Equal", 79, 82))
sketch3.addConstraint(Sketcher.Constraint("Equal", 80, 85))
sketch3.addConstraint(Sketcher.Constraint("Equal", 82, 87))
sketch3.addConstraint(Sketcher.Constraint("PointOnObject", 2, 1, -1))
sketch3.addConstraint(Sketcher.Constraint("PointOnObject", 84, 2, -1))
sketch3.addConstraint(Sketcher.Constraint("Parallel", 43, 44))
sketch3.addConstraint(Sketcher.Constraint("Parallel", 41, 46))
sketch3.addConstraint(Sketcher.Constraint("Parallel", 38, 49))
sketch3.addConstraint(Sketcher.Constraint("Parallel", 36, 51))
sketch3.addConstraint(Sketcher.Constraint("Parallel", 35, 52))
sketch3.addConstraint(Sketcher.Constraint("Parallel", 33, 54))
sketch3.addConstraint(Sketcher.Constraint("Parallel", 30, 57))
sketch3.addConstraint(Sketcher.Constraint("Parallel", 28, 59))
sketch3.addConstraint(Sketcher.Constraint("Parallel", 27, 60))
sketch3.addConstraint(Sketcher.Constraint("Parallel", 25, 62))
sketch3.addConstraint(Sketcher.Constraint("Parallel", 22, 65))
sketch3.addConstraint(Sketcher.Constraint("Parallel", 20, 67))
sketch3.addConstraint(Sketcher.Constraint("Parallel", 19, 68))
sketch3.addConstraint(Sketcher.Constraint("Parallel", 17, 70))
sketch3.addConstraint(Sketcher.Constraint("Parallel", 14, 73))
sketch3.addConstraint(Sketcher.Constraint("Parallel", 12, 75))
sketch3.addConstraint(Sketcher.Constraint("Parallel", 11, 76))
sketch3.addConstraint(Sketcher.Constraint("Parallel", 9, 78))
sketch3.addConstraint(Sketcher.Constraint("Parallel", 6, 81))
sketch3.addConstraint(Sketcher.Constraint("Parallel", 4, 83))
sketch3.addConstraint(Sketcher.Constraint("Parallel", 1, 86))
sketch3.addConstraint(Sketcher.Constraint("Horizontal", 36, 2, 44, 2))
sketch3.addConstraint(Sketcher.Constraint("Horizontal", 39, 1, 47, 1))
sketch3.addConstraint(Sketcher.Constraint("Horizontal", 42, 1, 50, 1))
sketch3.addConstraint(Sketcher.Constraint("Horizontal", 28, 2, 52, 2))
sketch3.addConstraint(Sketcher.Constraint("Horizontal", 31, 1, 55, 1))
sketch3.addConstraint(Sketcher.Constraint("Horizontal", 34, 1, 58, 1))
sketch3.addConstraint(Sketcher.Constraint("Horizontal", 20, 2, 60, 2))
sketch3.addConstraint(Sketcher.Constraint("Horizontal", 23, 1, 63, 1))
sketch3.addConstraint(Sketcher.Constraint("Horizontal", 26, 1, 66, 1))
sketch3.addConstraint(Sketcher.Constraint("Horizontal", 12, 2, 68, 2))
sketch3.addConstraint(Sketcher.Constraint("Horizontal", 15, 1, 71, 1))
sketch3.addConstraint(Sketcher.Constraint("Horizontal", 18, 1, 74, 1))
sketch3.addConstraint(Sketcher.Constraint("Horizontal", 4, 2, 76, 2))
sketch3.addConstraint(Sketcher.Constraint("Horizontal", 7, 1, 79, 1))
sketch3.addConstraint(Sketcher.Constraint("Horizontal", 10, 1, 82, 1))
sketch3.addConstraint(Sketcher.Constraint("Vertical", 7, 1, 10, 1))
sketch3.addConstraint(Sketcher.Constraint("Vertical", 15, 1, 18, 1))
sketch3.addConstraint(Sketcher.Constraint("Vertical", 23, 1, 26, 1))
sketch3.addConstraint(Sketcher.Constraint("Vertical", 31, 1, 34, 1))
sketch3.addConstraint(Sketcher.Constraint("Vertical", 39, 1, 42, 1))
sketch3.addConstraint(Sketcher.Constraint("Radius", 0, 5.999999))
sketch3.addConstraint(Sketcher.Constraint("Radius", 2, 5.34))
sketch3.addConstraint(Sketcher.Constraint("Angle", 1, Q("-175.91 deg")))
sketch3.addConstraint(Sketcher.Constraint("DistanceX", -1, 1, 1, 2, 5.3264))
sketch3.addConstraint(Sketcher.Constraint("DistanceX", -1, 1, 40, 2, 1.275299))
sketch3.addConstraint(Sketcher.Constraint("DistanceX", 45, 2, -1, 1, 1.275299))
sketch3.addConstraint(Sketcher.Constraint("DistanceX", 86, 2, -1, 1, 5.3264))
sketch3.addConstraint(Sketcher.Constraint("DistanceX", -1, 1, 5, 2, 5.621732))
sketch3.addConstraint(Sketcher.Constraint("DistanceX", -1, 1, 6, 2, 5.003341))
sketch3.addConstraint(Sketcher.Constraint("DistanceY", -1, 1, 7, 1, 1.504452))
sketch3.addConstraint(Sketcher.Constraint("DistanceX", -1, 1, 8, 2, 5.862861))
sketch3.addConstraint(Sketcher.Constraint("DistanceY", 9, 2, -1, 1, 1.135181))
sketch3.addConstraint(Sketcher.Constraint("DistanceX", -1, 1, 12, 2, 5.047521))
sketch3.addConstraint(Sketcher.Constraint("DistanceY", -1, 1, 13, 2, 3.59559))
sketch3.addConstraint(Sketcher.Constraint("DistanceX", -1, 1, 14, 2, 4.274941))
sketch3.addConstraint(Sketcher.Constraint("DistanceY", -1, 1, 15, 1, 2.887022))
sketch3.addConstraint(Sketcher.Constraint("DistanceX", -1, 1, 16, 2, 5.266028))
sketch3.addConstraint(Sketcher.Constraint("DistanceY", -1, 1, 21, 2, 4.80319))
sketch3.addConstraint(Sketcher.Constraint("DistanceX", -1, 1, 22, 2, 3.200211))
sketch3.addConstraint(Sketcher.Constraint("DistanceY", 24, 2, -1, 1, 4.242708))
sketch3.addConstraint(Sketcher.Constraint("DistanceX", -1, 1, 25, 2, 3.77589))
sketch3.addConstraint(Sketcher.Constraint("DistanceX", -1, 1, 28, 2, 2.49249))
sketch3.addConstraint(Sketcher.Constraint("DistanceX", -1, 1, 30, 2, 1.866218))
sketch3.addConstraint(Sketcher.Constraint("DistanceX", -1, 1, 32, 2, 2.87541))
sketch3.addConstraint(Sketcher.Constraint("DistanceX", -1, 1, 36, 2, 0.853889))
sketch3.addConstraint(Sketcher.Constraint("DistanceX", -1, 1, 37, 2, 0.42813))
sketch3.addConstraint(Sketcher.Constraint("DistanceY", -1, 1, 38, 2, 5.326388))
sketch3.addConstraint(Sketcher.Constraint("DistanceX", -1, 1, 39, 1, 0.759961))
sketch3.addConstraint(Sketcher.Constraint("DistanceX", 48, 2, -1, 1, 0.42813))
sketch3.addConstraint(Sketcher.Constraint("DistanceX", 53, 2, -1, 1, 2.87541))
sketch3.addConstraint(Sketcher.Constraint("DistanceX", 57, 2, -1, 1, 1.866218))
sketch3.addConstraint(Sketcher.Constraint("DistanceY", -1, 1, 61, 2, 4.242708))
sketch3.addConstraint(Sketcher.Constraint("DistanceY", 64, 2, -1, 1, 4.80319))
sketch3.addConstraint(Sketcher.Constraint("DistanceX", 69, 2, -1, 1, 5.266028))
sketch3.addConstraint(Sketcher.Constraint("DistanceY", 72, 2, -1, 1, 3.59559))
sketch3.addConstraint(Sketcher.Constraint("DistanceX", 77, 2, -1, 1, 5.862861))
sketch3.addConstraint(Sketcher.Constraint("DistanceX", 80, 2, -1, 1, 5.621732))
sketch3.addConstraint(Sketcher.Constraint("DistanceX", -1, 1, 4, 2, 5.756958))
sketch3.addConstraint(Sketcher.Constraint("DistanceX", -1, 1, 17, 2, 4.686765))
sketch3.addConstraint(Sketcher.Constraint("DistanceX", -1, 1, 20, 2, 3.929164))
sketch3.addConstraint(Sketcher.Constraint("DistanceX", -1, 1, 23, 1, 3.496956))
sketch3.addConstraint(Sketcher.Constraint("DistanceX", -1, 1, 29, 2, 2.096874))
sketch3.addConstraint(Sketcher.Constraint("DistanceX", -1, 1, 31, 1, 2.218316))
sketch3.addConstraint(Sketcher.Constraint("DistanceX", -1, 1, 33, 2, 2.559115))
sketch3.addConstraint(Sketcher.Constraint("DistanceX", -1, 1, 41, 2, 1.135016))
sketch3.setExpression("Constraints[219]", "Params.sketch3_radius")
sketch3.setExpression("Constraints[220]", "Params.sketch3_radius2")
pad2 = body.newObject("PartDesign::Pad", "Pad001")
pad2.Profile = sketch3
pad2.setExpression("Length", "Params.pad2_length")
pad2.Reversed = True

doc.recompute()
